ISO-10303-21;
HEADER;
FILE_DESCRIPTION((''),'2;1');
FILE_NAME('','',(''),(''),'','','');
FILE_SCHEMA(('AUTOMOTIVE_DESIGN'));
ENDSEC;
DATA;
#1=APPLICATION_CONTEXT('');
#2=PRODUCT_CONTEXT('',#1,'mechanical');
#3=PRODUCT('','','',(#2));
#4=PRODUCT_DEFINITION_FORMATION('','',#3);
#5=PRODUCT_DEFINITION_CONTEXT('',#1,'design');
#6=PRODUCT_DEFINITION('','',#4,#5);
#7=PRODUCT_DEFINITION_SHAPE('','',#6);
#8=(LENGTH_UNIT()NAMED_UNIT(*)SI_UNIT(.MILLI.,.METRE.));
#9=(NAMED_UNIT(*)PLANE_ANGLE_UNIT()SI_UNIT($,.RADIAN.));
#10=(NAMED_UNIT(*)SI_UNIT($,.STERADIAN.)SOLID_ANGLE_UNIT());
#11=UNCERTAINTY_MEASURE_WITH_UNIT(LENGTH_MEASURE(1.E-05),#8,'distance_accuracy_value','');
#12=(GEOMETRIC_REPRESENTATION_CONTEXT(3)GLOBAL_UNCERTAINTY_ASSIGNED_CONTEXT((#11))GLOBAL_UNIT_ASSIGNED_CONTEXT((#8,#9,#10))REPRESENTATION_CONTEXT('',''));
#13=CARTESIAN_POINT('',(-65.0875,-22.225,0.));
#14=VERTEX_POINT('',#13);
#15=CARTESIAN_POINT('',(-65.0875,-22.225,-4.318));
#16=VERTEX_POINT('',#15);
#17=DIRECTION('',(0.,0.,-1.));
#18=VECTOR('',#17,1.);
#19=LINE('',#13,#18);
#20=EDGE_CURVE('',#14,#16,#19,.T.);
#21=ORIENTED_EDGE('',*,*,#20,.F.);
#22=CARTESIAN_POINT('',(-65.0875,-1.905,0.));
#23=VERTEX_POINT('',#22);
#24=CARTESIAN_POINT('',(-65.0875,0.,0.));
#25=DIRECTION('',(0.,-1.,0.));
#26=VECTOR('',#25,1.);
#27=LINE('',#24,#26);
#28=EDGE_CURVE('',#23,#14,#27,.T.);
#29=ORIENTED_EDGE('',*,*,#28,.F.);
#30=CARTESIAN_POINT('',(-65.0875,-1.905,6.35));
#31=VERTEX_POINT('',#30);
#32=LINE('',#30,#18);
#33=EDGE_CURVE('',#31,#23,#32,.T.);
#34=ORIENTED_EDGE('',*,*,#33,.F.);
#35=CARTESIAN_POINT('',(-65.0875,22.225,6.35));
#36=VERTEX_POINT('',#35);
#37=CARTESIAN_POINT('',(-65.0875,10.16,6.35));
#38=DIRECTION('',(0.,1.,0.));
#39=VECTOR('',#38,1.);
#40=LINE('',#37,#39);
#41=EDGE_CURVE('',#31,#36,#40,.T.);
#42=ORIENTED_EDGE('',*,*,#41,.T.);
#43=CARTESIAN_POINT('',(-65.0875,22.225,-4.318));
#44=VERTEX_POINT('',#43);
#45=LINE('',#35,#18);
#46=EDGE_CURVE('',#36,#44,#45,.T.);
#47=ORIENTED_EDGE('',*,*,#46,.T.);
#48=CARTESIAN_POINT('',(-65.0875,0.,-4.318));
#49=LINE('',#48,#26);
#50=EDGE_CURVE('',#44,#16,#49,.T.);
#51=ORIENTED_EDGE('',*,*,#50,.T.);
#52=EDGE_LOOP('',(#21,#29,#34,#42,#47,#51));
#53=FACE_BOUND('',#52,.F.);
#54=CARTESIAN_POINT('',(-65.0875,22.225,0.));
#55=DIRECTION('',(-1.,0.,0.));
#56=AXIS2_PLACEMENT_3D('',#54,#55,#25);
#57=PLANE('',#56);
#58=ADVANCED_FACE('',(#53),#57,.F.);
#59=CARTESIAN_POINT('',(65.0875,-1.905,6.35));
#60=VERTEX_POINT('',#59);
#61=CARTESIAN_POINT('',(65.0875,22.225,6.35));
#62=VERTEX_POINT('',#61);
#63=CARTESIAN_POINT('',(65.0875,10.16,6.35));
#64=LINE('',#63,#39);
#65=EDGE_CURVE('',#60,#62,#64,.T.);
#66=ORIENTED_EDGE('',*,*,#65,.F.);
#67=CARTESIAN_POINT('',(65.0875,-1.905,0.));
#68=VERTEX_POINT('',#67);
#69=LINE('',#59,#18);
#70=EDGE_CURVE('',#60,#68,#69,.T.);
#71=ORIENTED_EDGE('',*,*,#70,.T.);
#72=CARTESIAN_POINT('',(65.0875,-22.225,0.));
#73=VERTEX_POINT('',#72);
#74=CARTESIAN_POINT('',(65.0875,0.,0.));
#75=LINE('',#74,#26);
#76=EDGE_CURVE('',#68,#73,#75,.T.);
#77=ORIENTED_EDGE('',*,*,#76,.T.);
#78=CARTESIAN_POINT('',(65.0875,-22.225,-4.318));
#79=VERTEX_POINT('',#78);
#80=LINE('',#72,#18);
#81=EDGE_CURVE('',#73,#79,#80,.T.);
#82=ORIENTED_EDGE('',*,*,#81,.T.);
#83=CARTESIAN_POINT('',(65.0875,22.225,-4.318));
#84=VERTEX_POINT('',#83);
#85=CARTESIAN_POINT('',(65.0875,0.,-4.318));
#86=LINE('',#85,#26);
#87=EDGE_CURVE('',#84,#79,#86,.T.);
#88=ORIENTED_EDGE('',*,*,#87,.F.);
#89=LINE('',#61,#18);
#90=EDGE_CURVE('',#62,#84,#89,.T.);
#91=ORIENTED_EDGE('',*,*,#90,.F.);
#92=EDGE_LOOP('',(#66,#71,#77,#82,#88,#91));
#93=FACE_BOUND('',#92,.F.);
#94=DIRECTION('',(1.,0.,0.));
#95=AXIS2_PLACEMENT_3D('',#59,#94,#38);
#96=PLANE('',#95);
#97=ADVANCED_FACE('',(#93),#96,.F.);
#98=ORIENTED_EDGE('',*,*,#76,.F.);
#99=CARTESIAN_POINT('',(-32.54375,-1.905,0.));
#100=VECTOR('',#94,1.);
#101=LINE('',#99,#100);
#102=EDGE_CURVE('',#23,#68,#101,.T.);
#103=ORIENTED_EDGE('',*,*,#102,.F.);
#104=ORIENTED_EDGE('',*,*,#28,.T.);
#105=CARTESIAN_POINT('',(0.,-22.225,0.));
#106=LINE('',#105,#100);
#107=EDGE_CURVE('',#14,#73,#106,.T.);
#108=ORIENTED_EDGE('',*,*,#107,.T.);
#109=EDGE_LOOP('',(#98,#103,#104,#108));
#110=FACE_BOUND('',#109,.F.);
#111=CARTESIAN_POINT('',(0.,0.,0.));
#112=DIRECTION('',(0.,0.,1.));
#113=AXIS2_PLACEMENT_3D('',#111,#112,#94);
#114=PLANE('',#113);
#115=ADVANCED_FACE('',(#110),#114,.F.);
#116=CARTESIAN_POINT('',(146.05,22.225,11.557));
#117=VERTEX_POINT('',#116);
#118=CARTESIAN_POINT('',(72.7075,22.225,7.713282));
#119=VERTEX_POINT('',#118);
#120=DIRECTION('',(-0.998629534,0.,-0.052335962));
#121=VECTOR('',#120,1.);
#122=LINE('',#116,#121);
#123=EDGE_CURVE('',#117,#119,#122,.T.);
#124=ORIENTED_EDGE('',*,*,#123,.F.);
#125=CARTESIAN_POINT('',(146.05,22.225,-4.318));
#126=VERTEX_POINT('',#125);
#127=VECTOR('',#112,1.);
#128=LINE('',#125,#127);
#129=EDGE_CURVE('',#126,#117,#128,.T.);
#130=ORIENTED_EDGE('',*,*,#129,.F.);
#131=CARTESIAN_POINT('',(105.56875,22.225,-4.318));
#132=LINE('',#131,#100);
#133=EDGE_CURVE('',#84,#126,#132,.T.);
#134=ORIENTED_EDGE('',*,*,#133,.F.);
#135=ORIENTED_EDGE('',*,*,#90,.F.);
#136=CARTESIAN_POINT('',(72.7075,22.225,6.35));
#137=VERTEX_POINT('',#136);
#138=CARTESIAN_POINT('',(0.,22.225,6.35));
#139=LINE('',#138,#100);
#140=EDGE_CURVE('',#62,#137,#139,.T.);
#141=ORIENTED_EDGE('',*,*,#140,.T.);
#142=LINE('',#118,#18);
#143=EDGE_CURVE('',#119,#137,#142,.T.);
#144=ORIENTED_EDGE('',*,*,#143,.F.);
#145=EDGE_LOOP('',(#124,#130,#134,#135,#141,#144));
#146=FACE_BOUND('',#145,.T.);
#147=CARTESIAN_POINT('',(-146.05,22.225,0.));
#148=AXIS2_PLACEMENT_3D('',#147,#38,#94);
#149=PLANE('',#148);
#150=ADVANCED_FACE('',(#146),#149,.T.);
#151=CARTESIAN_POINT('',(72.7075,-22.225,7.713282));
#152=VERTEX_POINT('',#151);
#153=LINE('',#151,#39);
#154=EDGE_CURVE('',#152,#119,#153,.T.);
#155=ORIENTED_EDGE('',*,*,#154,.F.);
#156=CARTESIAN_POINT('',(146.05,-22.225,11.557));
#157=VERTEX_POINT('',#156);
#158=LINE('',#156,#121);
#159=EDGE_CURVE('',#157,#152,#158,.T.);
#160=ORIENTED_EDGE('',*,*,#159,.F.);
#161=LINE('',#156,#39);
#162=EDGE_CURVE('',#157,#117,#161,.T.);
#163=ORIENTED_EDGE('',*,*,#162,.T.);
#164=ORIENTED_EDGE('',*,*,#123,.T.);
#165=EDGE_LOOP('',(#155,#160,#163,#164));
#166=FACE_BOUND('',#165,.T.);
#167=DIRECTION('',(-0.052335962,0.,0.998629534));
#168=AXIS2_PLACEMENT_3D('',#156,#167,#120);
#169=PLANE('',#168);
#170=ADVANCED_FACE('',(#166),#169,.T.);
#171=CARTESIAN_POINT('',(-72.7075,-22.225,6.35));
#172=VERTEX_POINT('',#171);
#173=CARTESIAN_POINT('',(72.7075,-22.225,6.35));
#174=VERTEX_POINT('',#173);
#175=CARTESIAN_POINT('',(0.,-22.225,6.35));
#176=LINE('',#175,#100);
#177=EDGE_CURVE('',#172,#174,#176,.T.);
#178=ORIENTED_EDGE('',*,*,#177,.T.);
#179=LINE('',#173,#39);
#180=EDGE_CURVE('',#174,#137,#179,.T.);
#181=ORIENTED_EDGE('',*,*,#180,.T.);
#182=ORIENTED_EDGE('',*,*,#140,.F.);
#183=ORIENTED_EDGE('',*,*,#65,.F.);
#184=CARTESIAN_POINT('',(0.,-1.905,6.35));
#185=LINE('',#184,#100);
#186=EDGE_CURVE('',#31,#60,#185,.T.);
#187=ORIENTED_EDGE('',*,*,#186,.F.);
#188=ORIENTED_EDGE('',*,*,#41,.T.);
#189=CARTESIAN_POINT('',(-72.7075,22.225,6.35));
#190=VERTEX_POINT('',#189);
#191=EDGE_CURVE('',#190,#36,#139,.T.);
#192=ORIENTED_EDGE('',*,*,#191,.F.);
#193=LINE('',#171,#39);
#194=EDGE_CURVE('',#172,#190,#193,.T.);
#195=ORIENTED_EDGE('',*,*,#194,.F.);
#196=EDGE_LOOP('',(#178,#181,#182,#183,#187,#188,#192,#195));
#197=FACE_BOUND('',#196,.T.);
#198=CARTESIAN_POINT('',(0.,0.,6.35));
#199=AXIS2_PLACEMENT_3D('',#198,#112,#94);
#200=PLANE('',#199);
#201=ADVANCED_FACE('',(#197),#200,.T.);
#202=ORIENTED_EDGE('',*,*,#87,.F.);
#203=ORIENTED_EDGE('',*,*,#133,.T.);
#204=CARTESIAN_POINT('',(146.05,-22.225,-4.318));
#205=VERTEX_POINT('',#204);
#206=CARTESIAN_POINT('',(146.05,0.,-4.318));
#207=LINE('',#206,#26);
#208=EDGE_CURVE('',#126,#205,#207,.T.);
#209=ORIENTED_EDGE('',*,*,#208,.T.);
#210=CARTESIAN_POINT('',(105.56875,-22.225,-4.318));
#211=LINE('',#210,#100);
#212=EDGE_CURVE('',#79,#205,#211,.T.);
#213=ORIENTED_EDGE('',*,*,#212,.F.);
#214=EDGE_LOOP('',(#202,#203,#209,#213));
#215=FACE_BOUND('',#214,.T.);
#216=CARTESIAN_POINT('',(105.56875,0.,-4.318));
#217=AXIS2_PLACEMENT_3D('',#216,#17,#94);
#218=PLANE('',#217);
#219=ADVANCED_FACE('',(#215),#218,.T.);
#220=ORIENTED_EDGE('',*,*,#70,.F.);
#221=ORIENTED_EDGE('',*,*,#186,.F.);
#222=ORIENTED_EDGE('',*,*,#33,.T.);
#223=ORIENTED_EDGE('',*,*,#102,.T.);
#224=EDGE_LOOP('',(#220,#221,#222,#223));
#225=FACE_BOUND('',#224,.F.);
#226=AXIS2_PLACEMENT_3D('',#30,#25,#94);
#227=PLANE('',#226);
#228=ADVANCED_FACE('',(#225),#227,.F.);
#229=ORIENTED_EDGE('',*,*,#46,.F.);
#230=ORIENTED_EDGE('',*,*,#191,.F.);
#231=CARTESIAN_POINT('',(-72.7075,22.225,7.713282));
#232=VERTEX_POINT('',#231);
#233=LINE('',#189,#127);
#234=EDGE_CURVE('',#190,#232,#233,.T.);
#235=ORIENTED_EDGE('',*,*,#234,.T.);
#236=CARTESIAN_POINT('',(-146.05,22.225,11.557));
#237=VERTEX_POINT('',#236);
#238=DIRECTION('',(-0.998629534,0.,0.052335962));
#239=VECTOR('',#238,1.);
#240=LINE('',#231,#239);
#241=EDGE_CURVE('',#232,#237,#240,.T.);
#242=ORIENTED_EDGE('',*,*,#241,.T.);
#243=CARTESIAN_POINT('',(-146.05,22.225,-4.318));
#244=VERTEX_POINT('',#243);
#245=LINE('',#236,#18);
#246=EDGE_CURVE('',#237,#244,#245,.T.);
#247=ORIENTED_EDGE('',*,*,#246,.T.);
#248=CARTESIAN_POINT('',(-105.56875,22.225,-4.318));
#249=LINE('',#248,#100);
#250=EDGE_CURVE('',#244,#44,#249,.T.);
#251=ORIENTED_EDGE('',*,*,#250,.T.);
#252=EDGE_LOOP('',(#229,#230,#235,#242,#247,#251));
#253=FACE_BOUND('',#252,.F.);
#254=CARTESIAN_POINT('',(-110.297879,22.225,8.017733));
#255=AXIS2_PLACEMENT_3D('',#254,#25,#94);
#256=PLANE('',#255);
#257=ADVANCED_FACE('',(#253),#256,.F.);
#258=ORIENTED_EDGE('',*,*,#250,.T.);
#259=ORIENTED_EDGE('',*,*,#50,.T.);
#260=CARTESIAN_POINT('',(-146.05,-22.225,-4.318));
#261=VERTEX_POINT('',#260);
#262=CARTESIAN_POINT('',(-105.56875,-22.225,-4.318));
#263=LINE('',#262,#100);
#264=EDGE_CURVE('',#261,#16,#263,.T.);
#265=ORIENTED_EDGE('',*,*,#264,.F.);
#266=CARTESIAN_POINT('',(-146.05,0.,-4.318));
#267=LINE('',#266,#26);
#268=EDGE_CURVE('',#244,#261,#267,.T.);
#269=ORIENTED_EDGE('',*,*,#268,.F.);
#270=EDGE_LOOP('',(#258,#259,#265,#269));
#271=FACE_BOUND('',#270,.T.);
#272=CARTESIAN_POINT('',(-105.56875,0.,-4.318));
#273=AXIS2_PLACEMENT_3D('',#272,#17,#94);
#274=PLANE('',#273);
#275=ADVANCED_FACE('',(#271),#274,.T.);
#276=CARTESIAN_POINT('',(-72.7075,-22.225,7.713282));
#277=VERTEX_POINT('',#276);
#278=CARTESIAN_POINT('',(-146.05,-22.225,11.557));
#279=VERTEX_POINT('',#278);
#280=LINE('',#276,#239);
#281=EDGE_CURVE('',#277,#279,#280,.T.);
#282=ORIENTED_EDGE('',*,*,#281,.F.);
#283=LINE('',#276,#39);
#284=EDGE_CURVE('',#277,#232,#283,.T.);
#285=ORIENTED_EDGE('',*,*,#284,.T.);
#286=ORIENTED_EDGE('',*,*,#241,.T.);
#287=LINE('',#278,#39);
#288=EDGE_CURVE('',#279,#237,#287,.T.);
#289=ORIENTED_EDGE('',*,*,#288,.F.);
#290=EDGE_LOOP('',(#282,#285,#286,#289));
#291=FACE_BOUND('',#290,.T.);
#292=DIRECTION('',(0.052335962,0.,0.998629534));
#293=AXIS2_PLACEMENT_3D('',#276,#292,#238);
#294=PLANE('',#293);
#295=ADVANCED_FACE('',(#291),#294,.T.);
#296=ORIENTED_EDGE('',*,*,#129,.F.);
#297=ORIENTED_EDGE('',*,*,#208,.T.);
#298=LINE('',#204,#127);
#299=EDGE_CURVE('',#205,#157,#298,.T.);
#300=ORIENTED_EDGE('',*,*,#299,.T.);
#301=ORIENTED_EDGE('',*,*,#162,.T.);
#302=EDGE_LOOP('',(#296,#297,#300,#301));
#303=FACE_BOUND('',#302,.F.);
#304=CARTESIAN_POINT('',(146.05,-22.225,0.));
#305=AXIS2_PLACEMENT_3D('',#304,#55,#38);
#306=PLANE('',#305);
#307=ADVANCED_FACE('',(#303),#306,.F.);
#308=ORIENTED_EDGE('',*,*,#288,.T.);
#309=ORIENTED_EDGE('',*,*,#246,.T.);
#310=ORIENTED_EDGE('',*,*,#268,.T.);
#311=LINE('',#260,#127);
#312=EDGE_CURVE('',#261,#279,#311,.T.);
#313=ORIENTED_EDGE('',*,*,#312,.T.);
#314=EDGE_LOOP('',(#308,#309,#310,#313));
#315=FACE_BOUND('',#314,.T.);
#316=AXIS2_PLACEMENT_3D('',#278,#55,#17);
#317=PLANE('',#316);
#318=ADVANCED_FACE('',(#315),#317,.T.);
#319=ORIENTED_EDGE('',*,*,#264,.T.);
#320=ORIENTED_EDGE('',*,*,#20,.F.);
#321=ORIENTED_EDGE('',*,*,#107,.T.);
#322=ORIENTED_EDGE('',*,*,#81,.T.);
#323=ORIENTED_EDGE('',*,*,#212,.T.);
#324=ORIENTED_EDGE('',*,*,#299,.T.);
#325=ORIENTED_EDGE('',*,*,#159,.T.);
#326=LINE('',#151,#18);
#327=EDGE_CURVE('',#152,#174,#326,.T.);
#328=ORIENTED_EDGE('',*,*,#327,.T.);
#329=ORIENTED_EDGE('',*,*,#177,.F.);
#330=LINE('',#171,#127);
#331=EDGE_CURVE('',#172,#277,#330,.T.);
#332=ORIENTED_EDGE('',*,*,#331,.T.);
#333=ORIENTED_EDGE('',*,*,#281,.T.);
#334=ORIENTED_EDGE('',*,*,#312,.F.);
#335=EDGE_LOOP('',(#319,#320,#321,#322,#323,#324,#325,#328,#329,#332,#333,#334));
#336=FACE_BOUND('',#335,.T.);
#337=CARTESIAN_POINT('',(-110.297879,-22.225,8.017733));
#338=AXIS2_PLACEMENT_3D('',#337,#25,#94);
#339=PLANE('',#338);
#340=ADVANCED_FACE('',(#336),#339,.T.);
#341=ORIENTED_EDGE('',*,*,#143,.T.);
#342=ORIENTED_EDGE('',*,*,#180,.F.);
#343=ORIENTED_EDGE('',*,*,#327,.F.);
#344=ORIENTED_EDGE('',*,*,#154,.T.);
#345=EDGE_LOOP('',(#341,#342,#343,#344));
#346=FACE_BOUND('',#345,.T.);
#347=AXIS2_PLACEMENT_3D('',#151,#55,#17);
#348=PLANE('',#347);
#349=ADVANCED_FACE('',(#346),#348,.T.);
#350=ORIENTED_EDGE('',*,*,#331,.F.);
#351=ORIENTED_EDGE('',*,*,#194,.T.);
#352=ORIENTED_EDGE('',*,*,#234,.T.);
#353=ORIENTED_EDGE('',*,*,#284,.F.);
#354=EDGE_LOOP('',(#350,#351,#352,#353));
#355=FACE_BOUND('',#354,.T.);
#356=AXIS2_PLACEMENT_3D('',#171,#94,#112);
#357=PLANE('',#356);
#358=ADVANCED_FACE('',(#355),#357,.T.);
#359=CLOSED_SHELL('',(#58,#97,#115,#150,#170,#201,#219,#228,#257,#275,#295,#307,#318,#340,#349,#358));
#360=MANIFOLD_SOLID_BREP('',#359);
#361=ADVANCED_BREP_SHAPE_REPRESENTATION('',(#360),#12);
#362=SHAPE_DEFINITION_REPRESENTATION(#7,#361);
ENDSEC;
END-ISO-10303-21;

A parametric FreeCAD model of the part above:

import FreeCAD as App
import Part
import Sketcher
Q = App.Units.Quantity


def add_polygon(sketch, points):
    """Adds a closed chain of lines whose ends are joined by coincident constraints."""
    first, n = sketch.GeometryCount, len(points)
    for a, b in zip(points, points[1:] + points[:1]):
        sketch.addGeometry(Part.LineSegment(App.Vector(*a, 0), App.Vector(*b, 0)), False)
    for i in range(n):
        sketch.addConstraint(Sketcher.Constraint("Coincident", first + i, 2, first + (i + 1) % n, 1))

doc = App.newDocument("Part")
body = doc.addObject("PartDesign::Body", "Body")

sketch1 = body.newObject("Sketcher::SketchObject", "Sketch")
sketch1.AttachmentSupport = (doc.getObject("XY_Plane"), [""])
sketch1.MapMode = "FlatFace"
add_polygon(sketch1, [(-146, 22), (-146, -22), (146, -22), (146, 22)])
sketch1.addConstraint(Sketcher.Constraint("Vertical", 0))
sketch1.addConstraint(Sketcher.Constraint("Horizontal", 1))
sketch1.addConstraint(Sketcher.Constraint("Vertical", 2))
sketch1.addConstraint(Sketcher.Constraint("Horizontal", 3))
sketch1.addConstraint(Sketcher.Constraint("Symmetric", 0, 2, 2, 2, -1, 1))
sketch1.addConstraint(Sketcher.Constraint("DistanceX", 1, 1, 1, 2, Q("11.5 in")))
sketch1.addConstraint(Sketcher.Constraint("DistanceY", 0, 2, 0, 1, Q("1.75 in")))
pad1 = body.newObject("PartDesign::Pad", "Pad")
pad1.Profile = sketch1
pad1.Length = Q("0.25 in")

sketch2 = body.newObject("Sketcher::SketchObject", "Sketch001")
sketch2.AttachmentSupport = (doc.getObject("XY_Plane"), [""])
sketch2.MapMode = "FlatFace"
sketch2.AttachmentOffset = App.Placement(App.Vector(0, 0, 0.25 * 25.4), App.Rotation())
add_polygon(sketch2, [(-65, 22), (-65, -2), (65, -2), (65, 22)])
sketch2.addConstraint(Sketcher.Constraint("Vertical", 0))
sketch2.addConstraint(Sketcher.Constraint("Horizontal", 1))
sketch2.addConstraint(Sketcher.Constraint("Vertical", 2))
sketch2.addConstraint(Sketcher.Constraint("Horizontal", 3))
sketch2.addConstraint(Sketcher.Constraint("DistanceY", 0, 2, 0, 1, Q("0.95 in")))
sketch2.addConstraint(Sketcher.Constraint("DistanceX", 1, 1, 1, 2, Q("5.125 in")))
sketch2.addConstraint(Sketcher.Constraint("DistanceX", 0, 2, -1, 1, Q("2.5625 in")))
sketch2.addConstraint(Sketcher.Constraint("DistanceY", 0, 2, -1, 1, Q("0.075 in")))
pocket1 = body.newObject("PartDesign::Pocket", "Pocket")
pocket1.Profile = sketch2
pocket1.Type = "ThroughAll"

sketch3 = body.newObject("Sketcher::SketchObject", "Sketch002")
sketch3.AttachmentSupport = (doc.getObject("XY_Plane"), [""])
sketch3.MapMode = "FlatFace"
add_polygon(sketch3, [(-146, -22), (-146, 22), (-65, 22), (-65, -22)])
add_polygon(sketch3, [(65, -22), (65, 22), (146, 22), (146, -22)])
sketch3.addConstraint(Sketcher.Constraint("Vertical", 0))
sketch3.addConstraint(Sketcher.Constraint("Horizontal", 1))
sketch3.addConstraint(Sketcher.Constraint("Vertical", 2))
sketch3.addConstraint(Sketcher.Constraint("Horizontal", 3))
sketch3.addConstraint(Sketcher.Constraint("Vertical", 4))
sketch3.addConstraint(Sketcher.Constraint("Horizontal", 5))
sketch3.addConstraint(Sketcher.Constraint("Vertical", 6))
sketch3.addConstraint(Sketcher.Constraint("Horizontal", 7))
sketch3.addConstraint(Sketcher.Constraint("Symmetric", 2, 2, 4, 2, -1, 1))
sketch3.addConstraint(Sketcher.Constraint("Symmetric", 0, 2, 6, 2, -1, 1))
sketch3.addConstraint(Sketcher.Constraint("Horizontal", 1, 2, 4, 2))
sketch3.addConstraint(Sketcher.Constraint("DistanceY", 0, 1, 0, 2, Q("1.75 in")))
sketch3.addConstraint(Sketcher.Constraint("DistanceX", 0, 2, 5, 2, Q("11.5 in")))
sketch3.addConstraint(Sketcher.Constraint("DistanceX", 1, 1, 1, 2, Q("3.1875 in")))
pad2 = body.newObject("PartDesign::Pad", "Pad001")
pad2.Profile = sketch3
pad2.Length = Q("0.17 in")
pad2.Reversed = True

sketch4 = body.newObject("Sketcher::SketchObject", "Sketch003")
sketch4.AttachmentSupport = (doc.getObject("XZ_Plane"), [""])
sketch4.MapMode = "FlatFace"
sketch4.AttachmentOffset = App.Placement(App.Vector(0, 0, 0.875 * 25.4), App.Rotation())
add_polygon(sketch4, [(-146.1, 11.6), (-146.1, 6.3), (-72.7, 6.3), (-72.7, 7.7)])
add_polygon(sketch4, [(72.7, 7.7), (72.7, 6.3), (146.1, 6.3), (146.1, 11.6)])
sketch4.addConstraint(Sketcher.Constraint("Vertical", 0))
sketch4.addConstraint(Sketcher.Constraint("Horizontal", 1))
sketch4.addConstraint(Sketcher.Constraint("Vertical", 2))
sketch4.addConstraint(Sketcher.Constraint("Vertical", 4))
sketch4.addConstraint(Sketcher.Constraint("Horizontal", 5))
sketch4.addConstraint(Sketcher.Constraint("Vertical", 6))
sketch4.addConstraint(Sketcher.Constraint("Symmetric", 1, 2, 4, 2, -2))
sketch4.addConstraint(Sketcher.Constraint("Symmetric", 3, 2, 6, 2, -2))
sketch4.addConstraint(Sketcher.Constraint("Horizontal", 2, 2, 7, 2))
sketch4.addConstraint(Sketcher.Constraint("Angle", 3, Q("177 deg")))
sketch4.addConstraint(Sketcher.Constraint("DistanceX", 0, 2, 5, 2, Q("11.5 in")))
sketch4.addConstraint(Sketcher.Constraint("DistanceY", 0, 2, 0, 1, Q("0.205 in")))
sketch4.addConstraint(Sketcher.Constraint("DistanceY", -1, 1, 0, 2, Q("0.25 in")))
sketch4.addConstraint(Sketcher.Constraint("DistanceX", 1, 1, 1, 2, Q("2.8875 in")))
pad3 = body.newObject("PartDesign::Pad", "Pad002")
pad3.Profile = sketch4
pad3.Length = Q("1.75 in")
pad3.Reversed = True

doc.recompute()
